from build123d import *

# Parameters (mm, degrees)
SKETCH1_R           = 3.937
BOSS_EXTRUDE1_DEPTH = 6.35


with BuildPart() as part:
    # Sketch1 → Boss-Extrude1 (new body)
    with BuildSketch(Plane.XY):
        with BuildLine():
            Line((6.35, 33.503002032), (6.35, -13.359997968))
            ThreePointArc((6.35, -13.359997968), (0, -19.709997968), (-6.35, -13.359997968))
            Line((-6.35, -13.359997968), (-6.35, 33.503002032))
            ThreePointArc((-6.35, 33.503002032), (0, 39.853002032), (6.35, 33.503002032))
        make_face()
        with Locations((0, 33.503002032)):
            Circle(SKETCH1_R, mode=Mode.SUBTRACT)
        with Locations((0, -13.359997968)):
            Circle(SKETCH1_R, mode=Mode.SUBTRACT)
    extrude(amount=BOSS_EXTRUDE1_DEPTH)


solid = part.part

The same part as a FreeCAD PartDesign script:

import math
import FreeCAD as App
import Part
import Sketcher
Q = App.Units.Quantity

doc = App.newDocument("Part")
params = doc.addObject("Spreadsheet::Sheet", "Params")
for row, (alias, value) in enumerate([
    ("sketch1_diameter", "0.31 in"),
    ("sketch1_radius", "0.25 in"),
    ("sketch1_height", "1.845 in"),
    ("pad1_length", "0.25 in"),
], start=1):
    params.set(f"A{row}", alias)
    params.set(f"B{row}", "=" + value)
    params.setAlias(f"B{row}", alias)

body = doc.addObject("PartDesign::Body", "Body")

# Sketch on XY plane
sketch1 = body.newObject("Sketcher::SketchObject", "Sketch")
sketch1.AttachmentSupport = (doc.getObject("XY_Plane"), [""])
sketch1.MapMode = "FlatFace"
sketch1.addGeometry([
    Part.LineSegment(App.Vector(6.3, -13.4, 0), App.Vector(6.3, 33.5, 0)),  # 0
    Part.ArcOfCircle(Part.Circle(App.Vector(0, 33.5, 0), App.Vector(0, 0, 1), 6.3), math.radians(0), math.radians(180)),  # 1
    Part.LineSegment(App.Vector(-6.3, 33.5, 0), App.Vector(-6.3, -13.4, 0)),  # 2
    Part.ArcOfCircle(Part.Circle(App.Vector(0, -13.4, 0), App.Vector(0, 0, 1), 6.3), math.radians(180), math.radians(360)),  # 3
    Part.Circle(App.Vector(0, -13.4, 0), App.Vector(0, 0, 1), 3.9),  # 4
    Part.Circle(App.Vector(0, 33.5, 0), App.Vector(0, 0, 1), 3.9),  # 5
], False)
sketch1.addConstraint([
    Sketcher.Constraint("Tangent", 0, 2, 1, 1),
    Sketcher.Constraint("Tangent", 1, 2, 2, 1),
    Sketcher.Constraint("Tangent", 2, 2, 3, 1),
    Sketcher.Constraint("Tangent", 3, 2, 0, 1),
    Sketcher.Constraint("Vertical", 0),
    Sketcher.Constraint("Vertical", 2),
    Sketcher.Constraint("Coincident", 4, 3, 3, 3),
    Sketcher.Constraint("Coincident", 5, 3, 1, 3),
    Sketcher.Constraint("Equal", 4, 5),
    Sketcher.Constraint("PointOnObject", 1, 3, -2),
    Sketcher.Constraint("Diameter", 4, Q("0.31 in")),
    Sketcher.Constraint("Radius", 1, Q("0.25 in")),
    Sketcher.Constraint("DistanceY", 0, 1, 0, 2, Q("1.845 in")),
    Sketcher.Constraint("DistanceY", -1, 1, 1, 3, 33.503002),
])
sketch1.setExpression("Constraints[10]", "Params.sketch1_diameter")
sketch1.setExpression("Constraints[11]", "Params.sketch1_radius")
sketch1.setExpression("Constraints[12]", "Params.sketch1_height")
pad1 = body.newObject("PartDesign::Pad", "Pad")
pad1.Profile = sketch1
pad1.setExpression("Length", "Params.pad1_length")

doc.recompute()
